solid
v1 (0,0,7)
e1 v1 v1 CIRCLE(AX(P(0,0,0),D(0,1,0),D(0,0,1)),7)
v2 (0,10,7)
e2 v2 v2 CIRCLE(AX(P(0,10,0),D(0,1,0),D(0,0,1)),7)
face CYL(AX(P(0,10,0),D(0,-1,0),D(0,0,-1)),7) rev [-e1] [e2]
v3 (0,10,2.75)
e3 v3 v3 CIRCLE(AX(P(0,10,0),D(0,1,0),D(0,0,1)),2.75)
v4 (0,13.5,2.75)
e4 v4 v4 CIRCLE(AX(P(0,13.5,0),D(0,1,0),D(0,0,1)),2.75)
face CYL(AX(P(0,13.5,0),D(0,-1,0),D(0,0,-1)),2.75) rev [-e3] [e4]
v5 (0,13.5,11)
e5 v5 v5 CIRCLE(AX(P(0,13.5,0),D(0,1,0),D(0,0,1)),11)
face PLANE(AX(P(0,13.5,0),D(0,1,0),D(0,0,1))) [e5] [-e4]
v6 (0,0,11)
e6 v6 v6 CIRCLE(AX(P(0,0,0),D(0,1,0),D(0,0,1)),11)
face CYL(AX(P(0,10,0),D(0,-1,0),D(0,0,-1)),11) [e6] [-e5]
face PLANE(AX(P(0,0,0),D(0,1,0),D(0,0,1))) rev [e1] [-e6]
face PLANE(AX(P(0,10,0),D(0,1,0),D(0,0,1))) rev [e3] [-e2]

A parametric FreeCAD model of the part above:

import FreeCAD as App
import Part
import Sketcher

V = App.Vector

doc = App.newDocument("Part")
body = doc.addObject("PartDesign::Body", "Body")

sketch1 = body.newObject("Sketcher::SketchObject", "Sketch")
sketch1.AttachmentSupport = (doc.getObject("XZ_Plane"), [""])
sketch1.MapMode = "FlatFace"
sketch1.addGeometry([
    Part.Circle(V(0, 0, 0), V(0, 0, 1), 11),
    Part.Circle(V(0, 0, 0), V(0, 0, 1), 7),
], False)
sketch1.addConstraint([
    Sketcher.Constraint("Coincident", 0, 3, -1, 1),
    Sketcher.Constraint("Coincident", 1, 3, -1, 1),
    Sketcher.Constraint("Diameter", 0, 22.0),
    Sketcher.Constraint("Diameter", 1, 14.0),
])
pad1 = body.newObject("PartDesign::Pad", "Pad")
pad1.Profile = sketch1
pad1.Length = 10
pad1.Reversed = True

sketch2 = body.newObject("Sketcher::SketchObject", "Sketch001")
sketch2.AttachmentSupport = (doc.getObject("XZ_Plane"), [""])
sketch2.MapMode = "FlatFace"
sketch2.AttachmentOffset = App.Placement(V(0, 0, -10), App.Rotation())
sketch2.addGeometry([
    Part.Circle(V(0, 0, 0), V(0, 0, 1), 11),
    Part.Circle(V(0, 0, 0), V(0, 0, 1), 2.8),
], False)
sketch2.addConstraint([
    Sketcher.Constraint("Coincident", 0, 3, -1, 1),
    Sketcher.Constraint("Coincident", 1, 3, -1, 1),
    Sketcher.Constraint("Diameter", 0, 22.0),
    Sketcher.Constraint("Diameter", 1, 5.5),
])
pad2 = body.newObject("PartDesign::Pad", "Pad001")
pad2.Profile = sketch2
pad2.Length = 3.5
pad2.Reversed = True

doc.recompute()
